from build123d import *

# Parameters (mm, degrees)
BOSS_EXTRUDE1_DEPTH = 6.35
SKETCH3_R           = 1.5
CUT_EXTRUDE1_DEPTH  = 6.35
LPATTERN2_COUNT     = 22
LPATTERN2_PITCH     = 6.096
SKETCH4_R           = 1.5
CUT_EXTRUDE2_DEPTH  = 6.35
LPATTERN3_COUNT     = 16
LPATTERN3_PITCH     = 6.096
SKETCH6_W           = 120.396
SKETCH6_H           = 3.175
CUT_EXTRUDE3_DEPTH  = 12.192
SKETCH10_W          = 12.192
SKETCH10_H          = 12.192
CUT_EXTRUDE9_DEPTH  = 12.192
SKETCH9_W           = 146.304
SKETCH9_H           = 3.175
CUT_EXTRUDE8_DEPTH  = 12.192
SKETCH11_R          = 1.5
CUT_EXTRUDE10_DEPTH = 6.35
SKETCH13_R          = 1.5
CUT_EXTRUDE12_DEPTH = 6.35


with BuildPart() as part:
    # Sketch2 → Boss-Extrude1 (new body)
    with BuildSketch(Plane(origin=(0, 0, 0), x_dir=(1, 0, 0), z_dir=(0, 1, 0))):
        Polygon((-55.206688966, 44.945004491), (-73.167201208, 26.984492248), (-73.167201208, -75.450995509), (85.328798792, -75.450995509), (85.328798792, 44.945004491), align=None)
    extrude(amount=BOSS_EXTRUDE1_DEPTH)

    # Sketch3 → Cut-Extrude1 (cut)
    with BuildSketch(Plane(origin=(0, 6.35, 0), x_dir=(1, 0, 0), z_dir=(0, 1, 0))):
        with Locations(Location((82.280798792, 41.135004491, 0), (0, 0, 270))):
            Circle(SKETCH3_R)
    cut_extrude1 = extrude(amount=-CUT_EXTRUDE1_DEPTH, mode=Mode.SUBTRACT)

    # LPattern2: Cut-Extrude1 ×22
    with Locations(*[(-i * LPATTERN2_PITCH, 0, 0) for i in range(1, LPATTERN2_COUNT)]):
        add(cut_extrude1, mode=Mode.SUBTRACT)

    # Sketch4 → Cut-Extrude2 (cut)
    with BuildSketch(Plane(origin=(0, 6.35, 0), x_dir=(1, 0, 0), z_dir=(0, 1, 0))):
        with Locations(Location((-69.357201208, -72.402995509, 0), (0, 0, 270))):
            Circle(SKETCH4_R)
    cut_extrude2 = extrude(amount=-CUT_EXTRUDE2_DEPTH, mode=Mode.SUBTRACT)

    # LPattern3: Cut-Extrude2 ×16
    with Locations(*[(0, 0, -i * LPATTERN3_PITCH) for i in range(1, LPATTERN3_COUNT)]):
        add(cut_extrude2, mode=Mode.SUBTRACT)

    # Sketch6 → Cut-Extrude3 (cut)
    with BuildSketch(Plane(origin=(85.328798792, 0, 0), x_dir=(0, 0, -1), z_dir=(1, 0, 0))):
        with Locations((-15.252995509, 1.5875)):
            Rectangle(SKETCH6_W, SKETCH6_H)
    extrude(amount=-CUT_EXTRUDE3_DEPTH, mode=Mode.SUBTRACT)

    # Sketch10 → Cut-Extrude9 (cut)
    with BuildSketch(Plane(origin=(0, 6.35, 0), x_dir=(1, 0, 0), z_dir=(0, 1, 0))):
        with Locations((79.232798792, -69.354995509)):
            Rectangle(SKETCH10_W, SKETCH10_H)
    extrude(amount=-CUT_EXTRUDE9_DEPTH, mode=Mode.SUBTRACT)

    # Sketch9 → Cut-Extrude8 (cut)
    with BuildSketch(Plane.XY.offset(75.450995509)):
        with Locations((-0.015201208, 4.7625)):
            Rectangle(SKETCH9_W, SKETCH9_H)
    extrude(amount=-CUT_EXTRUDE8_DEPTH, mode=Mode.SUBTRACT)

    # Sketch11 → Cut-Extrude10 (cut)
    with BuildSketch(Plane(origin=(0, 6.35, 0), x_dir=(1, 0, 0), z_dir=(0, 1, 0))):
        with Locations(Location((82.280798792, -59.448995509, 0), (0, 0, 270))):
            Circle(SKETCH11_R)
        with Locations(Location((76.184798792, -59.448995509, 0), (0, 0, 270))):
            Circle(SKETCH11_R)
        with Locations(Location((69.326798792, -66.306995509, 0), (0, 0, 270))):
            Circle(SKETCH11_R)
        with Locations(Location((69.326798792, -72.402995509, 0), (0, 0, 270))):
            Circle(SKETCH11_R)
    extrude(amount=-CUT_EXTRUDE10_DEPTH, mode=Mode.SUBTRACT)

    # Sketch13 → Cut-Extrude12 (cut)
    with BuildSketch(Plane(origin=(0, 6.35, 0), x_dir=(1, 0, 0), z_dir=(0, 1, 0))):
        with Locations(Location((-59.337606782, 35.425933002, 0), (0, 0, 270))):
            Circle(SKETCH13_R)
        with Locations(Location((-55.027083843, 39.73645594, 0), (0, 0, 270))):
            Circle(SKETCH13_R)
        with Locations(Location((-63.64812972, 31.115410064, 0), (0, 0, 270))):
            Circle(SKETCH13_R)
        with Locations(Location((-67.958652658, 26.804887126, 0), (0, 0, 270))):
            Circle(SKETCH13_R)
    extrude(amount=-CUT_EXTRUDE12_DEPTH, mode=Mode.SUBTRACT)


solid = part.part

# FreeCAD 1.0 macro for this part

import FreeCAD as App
import Part
import Sketcher
from FreeCAD import Vector
Q = App.Units.Quantity


def add_polygon(sketch, points):
    """Adds a closed chain of lines whose ends are joined by coincident constraints."""
    first, n = sketch.GeometryCount, len(points)
    for a, b in zip(points, points[1:] + points[:1]):
        sketch.addGeometry(Part.LineSegment(App.Vector(*a, 0), App.Vector(*b, 0)), False)
    for i in range(n):
        sketch.addConstraint(Sketcher.Constraint("Coincident", first + i, 2, first + (i + 1) % n, 1))

doc = App.newDocument("Part")
params = doc.addObject("Spreadsheet::Sheet", "Params")
for row, (alias, value) in enumerate([
    ("sketch1_length", "1 in"),
    ("sketch1_width", "6.24 in"),
    ("sketch1_height", "4.74 in"),
    ("pad1_length", "0.25 in"),
    ("pocket1_length", "0.25 in"),
    ("linearpattern_pitch", "0.24 in"),
    ("pocket2_length", "0.25 in"),
    ("linearpattern2_pitch", "0.24 in"),
    ("sketch4_height", "4.74 in"),
    ("sketch4_width", "0.125 in"),
    ("pocket3_length", "0.48 in"),
    ("sketch5_width", "0.48 in"),
    ("pocket4_length", "0.48 in"),
    ("sketch6_width", "5.76 in"),
    ("sketch6_height", "0.125 in"),
    ("pocket5_length", "0.48 in"),
    ("pocket6_length", "0.25 in"),
    ("pocket7_length", "0.25 in"),
], start=1):
    params.set(f"A{row}", alias)
    params.set(f"B{row}", "=" + value)
    params.setAlias(f"B{row}", alias)

body = doc.addObject("PartDesign::Body", "Body")

sketch1 = body.newObject("Sketcher::SketchObject", "Sketch")
sketch1.AttachmentSupport = (doc.getObject("XZ_Plane"), [""])
sketch1.MapMode = "FlatFace"
add_polygon(sketch1, [(-55, -45), (-73, -27), (-73, 75), (85, 75), (85, -45)])
sketch1.addConstraint(Sketcher.Constraint("Vertical", 1))
sketch1.addConstraint(Sketcher.Constraint("Horizontal", 2))
sketch1.addConstraint(Sketcher.Constraint("Vertical", 3))
sketch1.addConstraint(Sketcher.Constraint("Horizontal", 4))
sketch1.addConstraint(Sketcher.Constraint("Distance", 0, Q("1 in")))
sketch1.addConstraint(Sketcher.Constraint("Angle", 0, Q("135 deg")))
sketch1.addConstraint(Sketcher.Constraint("DistanceX", 2, 1, 2, 2, Q("6.24 in")))
sketch1.addConstraint(Sketcher.Constraint("DistanceY", 3, 2, 3, 1, Q("4.74 in")))
sketch1.addConstraint(Sketcher.Constraint("DistanceX", 0, 2, -1, 1, Q("73.167201 mm")))
sketch1.addConstraint(Sketcher.Constraint("DistanceY", 0, 2, -1, 1, Q("26.984492 mm")))
sketch1.setExpression("Constraints[9]", "Params.sketch1_length")
sketch1.setExpression("Constraints[11]", "Params.sketch1_width")
sketch1.setExpression("Constraints[12]", "Params.sketch1_height")
pad1 = body.newObject("PartDesign::Pad", "Pad")
pad1.Profile = sketch1
pad1.setExpression("Length", "Params.pad1_length")
pad1.Reversed = True

sketch2 = body.newObject("Sketcher::SketchObject", "Sketch001")
sketch2.AttachmentSupport = (doc.getObject("XZ_Plane"), [""])
sketch2.MapMode = "FlatFace"
sketch2.AttachmentOffset = App.Placement(Vector(0, 0, -0.25 * 25.4), App.Rotation())
sketch2.addGeometry(Part.Circle(Vector(82.3, -41.1, 0), Vector(0, 0, 1), 1.5), False)
sketch2.addConstraint(Sketcher.Constraint("Diameter", 0, Q("3 mm")))
sketch2.addConstraint(Sketcher.Constraint("DistanceX", -1, 1, 0, 3, Q("82.280799 mm")))
sketch2.addConstraint(Sketcher.Constraint("DistanceY", 0, 3, -1, 1, Q("41.135004 mm")))
pocket1 = body.newObject("PartDesign::Pocket", "Pocket")
pocket1.Profile = sketch2
pocket1.setExpression("Length", "Params.pocket1_length")
pocket1.Reversed = True
doc.recompute()

linearpattern = body.newObject("PartDesign::LinearPattern", "LinearPattern")
linearpattern.Originals = [pocket1]
linearpattern.Direction = (doc.getObject("X_Axis"), [""])
linearpattern.Mode = "offset"
linearpattern.setExpression("Offset", "Params.linearpattern_pitch")
linearpattern.Occurrences = 22
linearpattern.Reversed = True
body.Tip = linearpattern

sketch3 = body.newObject("Sketcher::SketchObject", "Sketch002")
sketch3.AttachmentSupport = (doc.getObject("XZ_Plane"), [""])
sketch3.MapMode = "FlatFace"
sketch3.AttachmentOffset = App.Placement(Vector(0, 0, -0.25 * 25.4), App.Rotation())
sketch3.addGeometry(Part.Circle(Vector(-69.4, 72.4, 0), Vector(0, 0, 1), 1.5), False)
sketch3.addConstraint(Sketcher.Constraint("Diameter", 0, Q("3 mm")))
sketch3.addConstraint(Sketcher.Constraint("DistanceX", 0, 3, -1, 1, Q("69.357201 mm")))
sketch3.addConstraint(Sketcher.Constraint("DistanceY", -1, 1, 0, 3, Q("72.402996 mm")))
pocket2 = body.newObject("PartDesign::Pocket", "Pocket001")
pocket2.Profile = sketch3
pocket2.setExpression("Length", "Params.pocket2_length")
pocket2.Reversed = True
doc.recompute()

linearpattern2 = body.newObject("PartDesign::LinearPattern", "LinearPattern001")
linearpattern2.Originals = [pocket2]
linearpattern2.Direction = (doc.getObject("Z_Axis"), [""])
linearpattern2.Mode = "offset"
linearpattern2.setExpression("Offset", "Params.linearpattern2_pitch")
linearpattern2.Occurrences = 16
linearpattern2.Reversed = True
body.Tip = linearpattern2

sketch4 = body.newObject("Sketcher::SketchObject", "Sketch003")
sketch4.AttachmentSupport = (doc.getObject("YZ_Plane"), [""])
sketch4.MapMode = "FlatFace"
sketch4.AttachmentOffset = App.Placement(Vector(0, 0, 85.328799), App.Rotation())
add_polygon(sketch4, [(3.2, 75.5), (0, 75.5), (0, -44.9), (3.2, -44.9)])
sketch4.addConstraint(Sketcher.Constraint("Horizontal", 0))
sketch4.addConstraint(Sketcher.Constraint("Vertical", 1))
sketch4.addConstraint(Sketcher.Constraint("Horizontal", 2))
sketch4.addConstraint(Sketcher.Constraint("Vertical", 3))
sketch4.addConstraint(Sketcher.Constraint("PointOnObject", 0, 2, -2))
sketch4.addConstraint(Sketcher.Constraint("DistanceY", 1, 2, 1, 1, Q("4.74 in")))
sketch4.addConstraint(Sketcher.Constraint("DistanceX", 0, 2, 0, 1, Q("0.125 in")))
sketch4.addConstraint(Sketcher.Constraint("DistanceY", -1, 1, 0, 2, Q("75.450996 mm")))
sketch4.setExpression("Constraints[9]", "Params.sketch4_height")
sketch4.setExpression("Constraints[10]", "Params.sketch4_width")
pocket3 = body.newObject("PartDesign::Pocket", "Pocket002")
pocket3.Profile = sketch4
pocket3.setExpression("Length", "Params.pocket3_length")

sketch5 = body.newObject("Sketcher::SketchObject", "Sketch004")
sketch5.AttachmentSupport = (doc.getObject("XZ_Plane"), [""])
sketch5.MapMode = "FlatFace"
sketch5.AttachmentOffset = App.Placement(Vector(0, 0, -0.25 * 25.4), App.Rotation())
add_polygon(sketch5, [(73, 63), (73, 75), (85, 75), (85, 63)])
sketch5.addConstraint(Sketcher.Constraint("Vertical", 0))
sketch5.addConstraint(Sketcher.Constraint("Horizontal", 1))
sketch5.addConstraint(Sketcher.Constraint("Vertical", 2))
sketch5.addConstraint(Sketcher.Constraint("Horizontal", 3))
sketch5.addConstraint(Sketcher.Constraint("Equal", 3, 0))
sketch5.addConstraint(Sketcher.Constraint("DistanceX", 1, 1, 1, 2, Q("0.48 in")))
sketch5.addConstraint(Sketcher.Constraint("DistanceX", -1, 1, 0, 2, Q("73.136799 mm")))
sketch5.addConstraint(Sketcher.Constraint("DistanceY", -1, 1, 0, 2, Q("75.450996 mm")))
sketch5.setExpression("Constraints[9]", "Params.sketch5_width")
pocket4 = body.newObject("PartDesign::Pocket", "Pocket003")
pocket4.Profile = sketch5
pocket4.setExpression("Length", "Params.pocket4_length")
pocket4.Reversed = True

sketch6 = body.newObject("Sketcher::SketchObject", "Sketch005")
sketch6.AttachmentSupport = (doc.getObject("XY_Plane"), [""])
sketch6.MapMode = "FlatFace"
sketch6.AttachmentOffset = App.Placement(Vector(0, 0, 75.450996), App.Rotation())
add_polygon(sketch6, [(-73.2, 6.3), (-73.2, 3.2), (73.1, 3.2), (73.1, 6.3)])
sketch6.addConstraint(Sketcher.Constraint("Vertical", 0))
sketch6.addConstraint(Sketcher.Constraint("Horizontal", 1))
sketch6.addConstraint(Sketcher.Constraint("Vertical", 2))
sketch6.addConstraint(Sketcher.Constraint("Horizontal", 3))
sketch6.addConstraint(Sketcher.Constraint("DistanceX", 1, 1, 1, 2, Q("5.76 in")))
sketch6.addConstraint(Sketcher.Constraint("DistanceY", 0, 2, 0, 1, Q("0.125 in")))
sketch6.addConstraint(Sketcher.Constraint("DistanceY", -1, 1, 2, 2, Q("0.25 in")))
sketch6.addConstraint(Sketcher.Constraint("DistanceX", 0, 2, -1, 1, Q("73.167201 mm")))
sketch6.setExpression("Constraints[8]", "Params.sketch6_width")
sketch6.setExpression("Constraints[9]", "Params.sketch6_height")
pocket5 = body.newObject("PartDesign::Pocket", "Pocket004")
pocket5.Profile = sketch6
pocket5.setExpression("Length", "Params.pocket5_length")

sketch7 = body.newObject("Sketcher::SketchObject", "Sketch006")
sketch7.AttachmentSupport = (doc.getObject("XZ_Plane"), [""])
sketch7.MapMode = "FlatFace"
sketch7.AttachmentOffset = App.Placement(Vector(0, 0, -0.25 * 25.4), App.Rotation())
sketch7.addGeometry(Part.Circle(Vector(82.3, 59.4, 0), Vector(0, 0, 1), 1.5), False)
sketch7.addGeometry(Part.Circle(Vector(76.2, 59.4, 0), Vector(0, 0, 1), 1.5), False)
sketch7.addGeometry(Part.Circle(Vector(69.3, 66.3, 0), Vector(0, 0, 1), 1.5), False)
sketch7.addGeometry(Part.Circle(Vector(69.3, 72.4, 0), Vector(0, 0, 1), 1.5), False)
sketch7.addConstraint(Sketcher.Constraint("Equal", 0, 1))
sketch7.addConstraint(Sketcher.Constraint("Equal", 1, 2))
sketch7.addConstraint(Sketcher.Constraint("Equal", 2, 3))
sketch7.addConstraint(Sketcher.Constraint("Horizontal", 0, 3, 1, 3))
sketch7.addConstraint(Sketcher.Constraint("Vertical", 2, 3, 3, 3))
sketch7.addConstraint(Sketcher.Constraint("Diameter", 0, Q("3 mm")))
sketch7.addConstraint(Sketcher.Constraint("DistanceX", 1, 3, 0, 3, Q("0.24 in")))
sketch7.addConstraint(Sketcher.Constraint("DistanceX", 2, 3, 1, 3, Q("0.27 in")))
sketch7.addConstraint(Sketcher.Constraint("DistanceY", 1, 3, 2, 3, Q("0.27 in")))
sketch7.addConstraint(Sketcher.Constraint("DistanceY", 2, 3, 3, 3, Q("0.24 in")))
sketch7.addConstraint(Sketcher.Constraint("DistanceX", -1, 1, 0, 3, Q("82.280799 mm")))
sketch7.addConstraint(Sketcher.Constraint("DistanceY", -1, 1, 0, 3, Q("59.448996 mm")))
pocket6 = body.newObject("PartDesign::Pocket", "Pocket005")
pocket6.Profile = sketch7
pocket6.setExpression("Length", "Params.pocket6_length")
pocket6.Reversed = True

sketch8 = body.newObject("Sketcher::SketchObject", "Sketch007")
sketch8.AttachmentSupport = (doc.getObject("XZ_Plane"), [""])
sketch8.MapMode = "FlatFace"
sketch8.AttachmentOffset = App.Placement(Vector(0, 0, -0.25 * 25.4), App.Rotation())
sketch8.addGeometry(Part.Circle(Vector(-59.3, -35.4, 0), Vector(0, 0, 1), 1.5), False)
sketch8.addGeometry(Part.Circle(Vector(-55, -39.7, 0), Vector(0, 0, 1), 1.5), False)
sketch8.addGeometry(Part.Circle(Vector(-63.6, -31.1, 0), Vector(0, 0, 1), 1.5), False)
sketch8.addGeometry(Part.Circle(Vector(-68, -26.8, 0), Vector(0, 0, 1), 1.5), False)
sketch8.addConstraint(Sketcher.Constraint("Equal", 0, 1))
sketch8.addConstraint(Sketcher.Constraint("Equal", 1, 2))
sketch8.addConstraint(Sketcher.Constraint("Equal", 2, 3))
sketch8.addConstraint(Sketcher.Constraint("Diameter", 0, Q("3 mm")))
sketch8.addConstraint(Sketcher.Constraint("DistanceX", 2, 3, -1, 1, Q("63.64813 mm")))
sketch8.addConstraint(Sketcher.Constraint("DistanceY", 2, 3, -1, 1, Q("31.11541 mm")))
sketch8.addConstraint(Sketcher.Constraint("DistanceX", 3, 3, 1, 3, Q("12.931569 mm")))
sketch8.addConstraint(Sketcher.Constraint("DistanceY", 1, 3, 3, 3, Q("12.931569 mm")))
sketch8.addConstraint(Sketcher.Constraint("DistanceX", 0, 3, -1, 1, Q("59.337607 mm")))
sketch8.addConstraint(Sketcher.Constraint("DistanceY", 0, 3, -1, 1, Q("35.425933 mm")))
sketch8.addConstraint(Sketcher.Constraint("DistanceX", 1, 3, -1, 1, Q("55.027084 mm")))
sketch8.addConstraint(Sketcher.Constraint("DistanceY", 1, 3, -1, 1, Q("39.736456 mm")))
pocket7 = body.newObject("PartDesign::Pocket", "Pocket006")
pocket7.Profile = sketch8
pocket7.setExpression("Length", "Params.pocket7_length")
pocket7.Reversed = True

doc.recompute()
